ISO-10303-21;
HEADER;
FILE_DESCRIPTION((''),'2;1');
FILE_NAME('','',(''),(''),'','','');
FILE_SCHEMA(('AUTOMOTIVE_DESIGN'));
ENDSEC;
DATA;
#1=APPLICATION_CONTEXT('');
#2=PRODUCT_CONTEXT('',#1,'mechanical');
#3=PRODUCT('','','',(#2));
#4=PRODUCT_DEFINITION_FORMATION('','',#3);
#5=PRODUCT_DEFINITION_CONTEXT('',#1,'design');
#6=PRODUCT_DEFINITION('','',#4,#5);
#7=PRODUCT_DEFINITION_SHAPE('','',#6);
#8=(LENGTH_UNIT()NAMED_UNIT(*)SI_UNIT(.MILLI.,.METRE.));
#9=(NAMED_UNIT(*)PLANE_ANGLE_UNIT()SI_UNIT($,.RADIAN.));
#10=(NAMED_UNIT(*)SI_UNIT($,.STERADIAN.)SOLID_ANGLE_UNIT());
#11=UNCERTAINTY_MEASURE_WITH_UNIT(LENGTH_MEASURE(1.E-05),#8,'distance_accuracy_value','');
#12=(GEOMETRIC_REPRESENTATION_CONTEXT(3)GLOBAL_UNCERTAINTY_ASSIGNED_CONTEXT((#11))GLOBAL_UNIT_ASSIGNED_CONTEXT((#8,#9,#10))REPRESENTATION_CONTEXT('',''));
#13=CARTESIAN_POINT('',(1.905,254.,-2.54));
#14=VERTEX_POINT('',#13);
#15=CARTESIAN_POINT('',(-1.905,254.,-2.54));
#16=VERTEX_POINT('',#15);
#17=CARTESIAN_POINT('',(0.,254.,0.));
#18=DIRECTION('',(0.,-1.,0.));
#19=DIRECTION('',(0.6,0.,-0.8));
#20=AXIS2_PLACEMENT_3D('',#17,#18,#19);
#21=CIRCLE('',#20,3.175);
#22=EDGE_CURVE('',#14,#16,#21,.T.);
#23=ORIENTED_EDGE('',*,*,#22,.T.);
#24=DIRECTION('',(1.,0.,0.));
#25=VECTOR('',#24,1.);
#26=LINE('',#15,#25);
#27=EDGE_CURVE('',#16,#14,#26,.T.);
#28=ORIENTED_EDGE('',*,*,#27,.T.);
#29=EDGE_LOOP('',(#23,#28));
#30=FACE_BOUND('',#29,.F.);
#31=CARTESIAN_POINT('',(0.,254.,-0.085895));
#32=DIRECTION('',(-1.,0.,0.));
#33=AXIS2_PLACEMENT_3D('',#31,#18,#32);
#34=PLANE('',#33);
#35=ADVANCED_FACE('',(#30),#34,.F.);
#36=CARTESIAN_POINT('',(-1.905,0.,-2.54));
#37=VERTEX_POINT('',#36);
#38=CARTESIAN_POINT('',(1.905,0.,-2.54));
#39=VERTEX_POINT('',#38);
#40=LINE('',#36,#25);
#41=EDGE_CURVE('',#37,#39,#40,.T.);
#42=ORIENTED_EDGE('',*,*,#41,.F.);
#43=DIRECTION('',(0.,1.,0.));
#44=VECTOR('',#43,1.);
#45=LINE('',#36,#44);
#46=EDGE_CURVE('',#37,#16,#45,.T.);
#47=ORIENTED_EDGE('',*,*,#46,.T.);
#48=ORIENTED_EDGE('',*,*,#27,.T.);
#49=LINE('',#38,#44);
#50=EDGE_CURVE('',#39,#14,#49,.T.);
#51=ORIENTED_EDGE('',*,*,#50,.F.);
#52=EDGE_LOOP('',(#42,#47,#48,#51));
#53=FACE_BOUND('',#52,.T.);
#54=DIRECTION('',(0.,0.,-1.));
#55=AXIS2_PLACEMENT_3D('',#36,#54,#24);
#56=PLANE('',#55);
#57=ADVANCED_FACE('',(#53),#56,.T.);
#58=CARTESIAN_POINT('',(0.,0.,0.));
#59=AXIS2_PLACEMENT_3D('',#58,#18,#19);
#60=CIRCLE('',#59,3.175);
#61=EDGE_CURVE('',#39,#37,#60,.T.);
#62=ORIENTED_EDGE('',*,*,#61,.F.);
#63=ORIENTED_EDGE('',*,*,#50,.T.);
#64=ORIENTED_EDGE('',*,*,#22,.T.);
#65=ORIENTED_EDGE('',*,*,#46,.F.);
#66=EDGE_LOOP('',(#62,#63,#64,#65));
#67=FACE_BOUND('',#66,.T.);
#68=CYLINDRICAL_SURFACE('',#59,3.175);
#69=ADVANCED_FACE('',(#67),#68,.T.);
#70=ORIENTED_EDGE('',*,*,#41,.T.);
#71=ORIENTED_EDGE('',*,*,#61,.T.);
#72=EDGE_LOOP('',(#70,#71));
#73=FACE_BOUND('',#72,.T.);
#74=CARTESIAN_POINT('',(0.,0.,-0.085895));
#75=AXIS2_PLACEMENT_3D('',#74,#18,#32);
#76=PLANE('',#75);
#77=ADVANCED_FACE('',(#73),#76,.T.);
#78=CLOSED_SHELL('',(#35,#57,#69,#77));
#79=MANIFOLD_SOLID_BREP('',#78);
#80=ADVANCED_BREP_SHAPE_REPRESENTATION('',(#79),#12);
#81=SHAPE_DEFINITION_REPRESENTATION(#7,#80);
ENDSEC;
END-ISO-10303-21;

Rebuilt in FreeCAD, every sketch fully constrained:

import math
import FreeCAD as App
import Part
import Sketcher
from FreeCAD import Vector
Q = App.Units.Quantity

doc = App.newDocument("Part")
params = doc.addObject("Spreadsheet::Sheet", "Params")
for row, (alias, value) in enumerate([
    ("sketch1_radius", "0.125 in"),
    ("sketch1_width", "0.15 in"),
    ("pad1_length", "10 in"),
], start=1):
    params.set(f"A{row}", alias)
    params.set(f"B{row}", "=" + value)
    params.setAlias(f"B{row}", alias)

body = doc.addObject("PartDesign::Body", "Body")

# Sketch on XZ plane
sketch1 = body.newObject("Sketcher::SketchObject", "Sketch")
sketch1.AttachmentSupport = (doc.getObject("XZ_Plane"), [""])
sketch1.MapMode = "FlatFace"
sketch1.addGeometry([
    Part.LineSegment(Vector(1.905, -2.54, 0), Vector(-1.905, -2.54, 0)),
    Part.ArcOfCircle(Part.Circle(Vector(0, 0, 0), Vector(0, 0, 1), 3.175), math.radians(-53.130102), math.radians(233.130102)),
], False)
sketch1.addConstraint([
    Sketcher.Constraint("Coincident", 0, 1, 1, 1),
    Sketcher.Constraint("Coincident", 1, 2, 0, 2),
    Sketcher.Constraint("Horizontal", 0),
    Sketcher.Constraint("Coincident", 1, 3, -1, 1),
    Sketcher.Constraint("Radius", 1, Q("0.125 in")),
    Sketcher.Constraint("DistanceX", 0, 2, 0, 1, Q("0.15 in")),
])
sketch1.setExpression("Constraints[4]", "Params.sketch1_radius")
sketch1.setExpression("Constraints[5]", "Params.sketch1_width")
pad1 = body.newObject("PartDesign::Pad", "Pad")
pad1.Profile = sketch1
pad1.setExpression("Length", "Params.pad1_length")
pad1.Reversed = True

doc.recompute()
